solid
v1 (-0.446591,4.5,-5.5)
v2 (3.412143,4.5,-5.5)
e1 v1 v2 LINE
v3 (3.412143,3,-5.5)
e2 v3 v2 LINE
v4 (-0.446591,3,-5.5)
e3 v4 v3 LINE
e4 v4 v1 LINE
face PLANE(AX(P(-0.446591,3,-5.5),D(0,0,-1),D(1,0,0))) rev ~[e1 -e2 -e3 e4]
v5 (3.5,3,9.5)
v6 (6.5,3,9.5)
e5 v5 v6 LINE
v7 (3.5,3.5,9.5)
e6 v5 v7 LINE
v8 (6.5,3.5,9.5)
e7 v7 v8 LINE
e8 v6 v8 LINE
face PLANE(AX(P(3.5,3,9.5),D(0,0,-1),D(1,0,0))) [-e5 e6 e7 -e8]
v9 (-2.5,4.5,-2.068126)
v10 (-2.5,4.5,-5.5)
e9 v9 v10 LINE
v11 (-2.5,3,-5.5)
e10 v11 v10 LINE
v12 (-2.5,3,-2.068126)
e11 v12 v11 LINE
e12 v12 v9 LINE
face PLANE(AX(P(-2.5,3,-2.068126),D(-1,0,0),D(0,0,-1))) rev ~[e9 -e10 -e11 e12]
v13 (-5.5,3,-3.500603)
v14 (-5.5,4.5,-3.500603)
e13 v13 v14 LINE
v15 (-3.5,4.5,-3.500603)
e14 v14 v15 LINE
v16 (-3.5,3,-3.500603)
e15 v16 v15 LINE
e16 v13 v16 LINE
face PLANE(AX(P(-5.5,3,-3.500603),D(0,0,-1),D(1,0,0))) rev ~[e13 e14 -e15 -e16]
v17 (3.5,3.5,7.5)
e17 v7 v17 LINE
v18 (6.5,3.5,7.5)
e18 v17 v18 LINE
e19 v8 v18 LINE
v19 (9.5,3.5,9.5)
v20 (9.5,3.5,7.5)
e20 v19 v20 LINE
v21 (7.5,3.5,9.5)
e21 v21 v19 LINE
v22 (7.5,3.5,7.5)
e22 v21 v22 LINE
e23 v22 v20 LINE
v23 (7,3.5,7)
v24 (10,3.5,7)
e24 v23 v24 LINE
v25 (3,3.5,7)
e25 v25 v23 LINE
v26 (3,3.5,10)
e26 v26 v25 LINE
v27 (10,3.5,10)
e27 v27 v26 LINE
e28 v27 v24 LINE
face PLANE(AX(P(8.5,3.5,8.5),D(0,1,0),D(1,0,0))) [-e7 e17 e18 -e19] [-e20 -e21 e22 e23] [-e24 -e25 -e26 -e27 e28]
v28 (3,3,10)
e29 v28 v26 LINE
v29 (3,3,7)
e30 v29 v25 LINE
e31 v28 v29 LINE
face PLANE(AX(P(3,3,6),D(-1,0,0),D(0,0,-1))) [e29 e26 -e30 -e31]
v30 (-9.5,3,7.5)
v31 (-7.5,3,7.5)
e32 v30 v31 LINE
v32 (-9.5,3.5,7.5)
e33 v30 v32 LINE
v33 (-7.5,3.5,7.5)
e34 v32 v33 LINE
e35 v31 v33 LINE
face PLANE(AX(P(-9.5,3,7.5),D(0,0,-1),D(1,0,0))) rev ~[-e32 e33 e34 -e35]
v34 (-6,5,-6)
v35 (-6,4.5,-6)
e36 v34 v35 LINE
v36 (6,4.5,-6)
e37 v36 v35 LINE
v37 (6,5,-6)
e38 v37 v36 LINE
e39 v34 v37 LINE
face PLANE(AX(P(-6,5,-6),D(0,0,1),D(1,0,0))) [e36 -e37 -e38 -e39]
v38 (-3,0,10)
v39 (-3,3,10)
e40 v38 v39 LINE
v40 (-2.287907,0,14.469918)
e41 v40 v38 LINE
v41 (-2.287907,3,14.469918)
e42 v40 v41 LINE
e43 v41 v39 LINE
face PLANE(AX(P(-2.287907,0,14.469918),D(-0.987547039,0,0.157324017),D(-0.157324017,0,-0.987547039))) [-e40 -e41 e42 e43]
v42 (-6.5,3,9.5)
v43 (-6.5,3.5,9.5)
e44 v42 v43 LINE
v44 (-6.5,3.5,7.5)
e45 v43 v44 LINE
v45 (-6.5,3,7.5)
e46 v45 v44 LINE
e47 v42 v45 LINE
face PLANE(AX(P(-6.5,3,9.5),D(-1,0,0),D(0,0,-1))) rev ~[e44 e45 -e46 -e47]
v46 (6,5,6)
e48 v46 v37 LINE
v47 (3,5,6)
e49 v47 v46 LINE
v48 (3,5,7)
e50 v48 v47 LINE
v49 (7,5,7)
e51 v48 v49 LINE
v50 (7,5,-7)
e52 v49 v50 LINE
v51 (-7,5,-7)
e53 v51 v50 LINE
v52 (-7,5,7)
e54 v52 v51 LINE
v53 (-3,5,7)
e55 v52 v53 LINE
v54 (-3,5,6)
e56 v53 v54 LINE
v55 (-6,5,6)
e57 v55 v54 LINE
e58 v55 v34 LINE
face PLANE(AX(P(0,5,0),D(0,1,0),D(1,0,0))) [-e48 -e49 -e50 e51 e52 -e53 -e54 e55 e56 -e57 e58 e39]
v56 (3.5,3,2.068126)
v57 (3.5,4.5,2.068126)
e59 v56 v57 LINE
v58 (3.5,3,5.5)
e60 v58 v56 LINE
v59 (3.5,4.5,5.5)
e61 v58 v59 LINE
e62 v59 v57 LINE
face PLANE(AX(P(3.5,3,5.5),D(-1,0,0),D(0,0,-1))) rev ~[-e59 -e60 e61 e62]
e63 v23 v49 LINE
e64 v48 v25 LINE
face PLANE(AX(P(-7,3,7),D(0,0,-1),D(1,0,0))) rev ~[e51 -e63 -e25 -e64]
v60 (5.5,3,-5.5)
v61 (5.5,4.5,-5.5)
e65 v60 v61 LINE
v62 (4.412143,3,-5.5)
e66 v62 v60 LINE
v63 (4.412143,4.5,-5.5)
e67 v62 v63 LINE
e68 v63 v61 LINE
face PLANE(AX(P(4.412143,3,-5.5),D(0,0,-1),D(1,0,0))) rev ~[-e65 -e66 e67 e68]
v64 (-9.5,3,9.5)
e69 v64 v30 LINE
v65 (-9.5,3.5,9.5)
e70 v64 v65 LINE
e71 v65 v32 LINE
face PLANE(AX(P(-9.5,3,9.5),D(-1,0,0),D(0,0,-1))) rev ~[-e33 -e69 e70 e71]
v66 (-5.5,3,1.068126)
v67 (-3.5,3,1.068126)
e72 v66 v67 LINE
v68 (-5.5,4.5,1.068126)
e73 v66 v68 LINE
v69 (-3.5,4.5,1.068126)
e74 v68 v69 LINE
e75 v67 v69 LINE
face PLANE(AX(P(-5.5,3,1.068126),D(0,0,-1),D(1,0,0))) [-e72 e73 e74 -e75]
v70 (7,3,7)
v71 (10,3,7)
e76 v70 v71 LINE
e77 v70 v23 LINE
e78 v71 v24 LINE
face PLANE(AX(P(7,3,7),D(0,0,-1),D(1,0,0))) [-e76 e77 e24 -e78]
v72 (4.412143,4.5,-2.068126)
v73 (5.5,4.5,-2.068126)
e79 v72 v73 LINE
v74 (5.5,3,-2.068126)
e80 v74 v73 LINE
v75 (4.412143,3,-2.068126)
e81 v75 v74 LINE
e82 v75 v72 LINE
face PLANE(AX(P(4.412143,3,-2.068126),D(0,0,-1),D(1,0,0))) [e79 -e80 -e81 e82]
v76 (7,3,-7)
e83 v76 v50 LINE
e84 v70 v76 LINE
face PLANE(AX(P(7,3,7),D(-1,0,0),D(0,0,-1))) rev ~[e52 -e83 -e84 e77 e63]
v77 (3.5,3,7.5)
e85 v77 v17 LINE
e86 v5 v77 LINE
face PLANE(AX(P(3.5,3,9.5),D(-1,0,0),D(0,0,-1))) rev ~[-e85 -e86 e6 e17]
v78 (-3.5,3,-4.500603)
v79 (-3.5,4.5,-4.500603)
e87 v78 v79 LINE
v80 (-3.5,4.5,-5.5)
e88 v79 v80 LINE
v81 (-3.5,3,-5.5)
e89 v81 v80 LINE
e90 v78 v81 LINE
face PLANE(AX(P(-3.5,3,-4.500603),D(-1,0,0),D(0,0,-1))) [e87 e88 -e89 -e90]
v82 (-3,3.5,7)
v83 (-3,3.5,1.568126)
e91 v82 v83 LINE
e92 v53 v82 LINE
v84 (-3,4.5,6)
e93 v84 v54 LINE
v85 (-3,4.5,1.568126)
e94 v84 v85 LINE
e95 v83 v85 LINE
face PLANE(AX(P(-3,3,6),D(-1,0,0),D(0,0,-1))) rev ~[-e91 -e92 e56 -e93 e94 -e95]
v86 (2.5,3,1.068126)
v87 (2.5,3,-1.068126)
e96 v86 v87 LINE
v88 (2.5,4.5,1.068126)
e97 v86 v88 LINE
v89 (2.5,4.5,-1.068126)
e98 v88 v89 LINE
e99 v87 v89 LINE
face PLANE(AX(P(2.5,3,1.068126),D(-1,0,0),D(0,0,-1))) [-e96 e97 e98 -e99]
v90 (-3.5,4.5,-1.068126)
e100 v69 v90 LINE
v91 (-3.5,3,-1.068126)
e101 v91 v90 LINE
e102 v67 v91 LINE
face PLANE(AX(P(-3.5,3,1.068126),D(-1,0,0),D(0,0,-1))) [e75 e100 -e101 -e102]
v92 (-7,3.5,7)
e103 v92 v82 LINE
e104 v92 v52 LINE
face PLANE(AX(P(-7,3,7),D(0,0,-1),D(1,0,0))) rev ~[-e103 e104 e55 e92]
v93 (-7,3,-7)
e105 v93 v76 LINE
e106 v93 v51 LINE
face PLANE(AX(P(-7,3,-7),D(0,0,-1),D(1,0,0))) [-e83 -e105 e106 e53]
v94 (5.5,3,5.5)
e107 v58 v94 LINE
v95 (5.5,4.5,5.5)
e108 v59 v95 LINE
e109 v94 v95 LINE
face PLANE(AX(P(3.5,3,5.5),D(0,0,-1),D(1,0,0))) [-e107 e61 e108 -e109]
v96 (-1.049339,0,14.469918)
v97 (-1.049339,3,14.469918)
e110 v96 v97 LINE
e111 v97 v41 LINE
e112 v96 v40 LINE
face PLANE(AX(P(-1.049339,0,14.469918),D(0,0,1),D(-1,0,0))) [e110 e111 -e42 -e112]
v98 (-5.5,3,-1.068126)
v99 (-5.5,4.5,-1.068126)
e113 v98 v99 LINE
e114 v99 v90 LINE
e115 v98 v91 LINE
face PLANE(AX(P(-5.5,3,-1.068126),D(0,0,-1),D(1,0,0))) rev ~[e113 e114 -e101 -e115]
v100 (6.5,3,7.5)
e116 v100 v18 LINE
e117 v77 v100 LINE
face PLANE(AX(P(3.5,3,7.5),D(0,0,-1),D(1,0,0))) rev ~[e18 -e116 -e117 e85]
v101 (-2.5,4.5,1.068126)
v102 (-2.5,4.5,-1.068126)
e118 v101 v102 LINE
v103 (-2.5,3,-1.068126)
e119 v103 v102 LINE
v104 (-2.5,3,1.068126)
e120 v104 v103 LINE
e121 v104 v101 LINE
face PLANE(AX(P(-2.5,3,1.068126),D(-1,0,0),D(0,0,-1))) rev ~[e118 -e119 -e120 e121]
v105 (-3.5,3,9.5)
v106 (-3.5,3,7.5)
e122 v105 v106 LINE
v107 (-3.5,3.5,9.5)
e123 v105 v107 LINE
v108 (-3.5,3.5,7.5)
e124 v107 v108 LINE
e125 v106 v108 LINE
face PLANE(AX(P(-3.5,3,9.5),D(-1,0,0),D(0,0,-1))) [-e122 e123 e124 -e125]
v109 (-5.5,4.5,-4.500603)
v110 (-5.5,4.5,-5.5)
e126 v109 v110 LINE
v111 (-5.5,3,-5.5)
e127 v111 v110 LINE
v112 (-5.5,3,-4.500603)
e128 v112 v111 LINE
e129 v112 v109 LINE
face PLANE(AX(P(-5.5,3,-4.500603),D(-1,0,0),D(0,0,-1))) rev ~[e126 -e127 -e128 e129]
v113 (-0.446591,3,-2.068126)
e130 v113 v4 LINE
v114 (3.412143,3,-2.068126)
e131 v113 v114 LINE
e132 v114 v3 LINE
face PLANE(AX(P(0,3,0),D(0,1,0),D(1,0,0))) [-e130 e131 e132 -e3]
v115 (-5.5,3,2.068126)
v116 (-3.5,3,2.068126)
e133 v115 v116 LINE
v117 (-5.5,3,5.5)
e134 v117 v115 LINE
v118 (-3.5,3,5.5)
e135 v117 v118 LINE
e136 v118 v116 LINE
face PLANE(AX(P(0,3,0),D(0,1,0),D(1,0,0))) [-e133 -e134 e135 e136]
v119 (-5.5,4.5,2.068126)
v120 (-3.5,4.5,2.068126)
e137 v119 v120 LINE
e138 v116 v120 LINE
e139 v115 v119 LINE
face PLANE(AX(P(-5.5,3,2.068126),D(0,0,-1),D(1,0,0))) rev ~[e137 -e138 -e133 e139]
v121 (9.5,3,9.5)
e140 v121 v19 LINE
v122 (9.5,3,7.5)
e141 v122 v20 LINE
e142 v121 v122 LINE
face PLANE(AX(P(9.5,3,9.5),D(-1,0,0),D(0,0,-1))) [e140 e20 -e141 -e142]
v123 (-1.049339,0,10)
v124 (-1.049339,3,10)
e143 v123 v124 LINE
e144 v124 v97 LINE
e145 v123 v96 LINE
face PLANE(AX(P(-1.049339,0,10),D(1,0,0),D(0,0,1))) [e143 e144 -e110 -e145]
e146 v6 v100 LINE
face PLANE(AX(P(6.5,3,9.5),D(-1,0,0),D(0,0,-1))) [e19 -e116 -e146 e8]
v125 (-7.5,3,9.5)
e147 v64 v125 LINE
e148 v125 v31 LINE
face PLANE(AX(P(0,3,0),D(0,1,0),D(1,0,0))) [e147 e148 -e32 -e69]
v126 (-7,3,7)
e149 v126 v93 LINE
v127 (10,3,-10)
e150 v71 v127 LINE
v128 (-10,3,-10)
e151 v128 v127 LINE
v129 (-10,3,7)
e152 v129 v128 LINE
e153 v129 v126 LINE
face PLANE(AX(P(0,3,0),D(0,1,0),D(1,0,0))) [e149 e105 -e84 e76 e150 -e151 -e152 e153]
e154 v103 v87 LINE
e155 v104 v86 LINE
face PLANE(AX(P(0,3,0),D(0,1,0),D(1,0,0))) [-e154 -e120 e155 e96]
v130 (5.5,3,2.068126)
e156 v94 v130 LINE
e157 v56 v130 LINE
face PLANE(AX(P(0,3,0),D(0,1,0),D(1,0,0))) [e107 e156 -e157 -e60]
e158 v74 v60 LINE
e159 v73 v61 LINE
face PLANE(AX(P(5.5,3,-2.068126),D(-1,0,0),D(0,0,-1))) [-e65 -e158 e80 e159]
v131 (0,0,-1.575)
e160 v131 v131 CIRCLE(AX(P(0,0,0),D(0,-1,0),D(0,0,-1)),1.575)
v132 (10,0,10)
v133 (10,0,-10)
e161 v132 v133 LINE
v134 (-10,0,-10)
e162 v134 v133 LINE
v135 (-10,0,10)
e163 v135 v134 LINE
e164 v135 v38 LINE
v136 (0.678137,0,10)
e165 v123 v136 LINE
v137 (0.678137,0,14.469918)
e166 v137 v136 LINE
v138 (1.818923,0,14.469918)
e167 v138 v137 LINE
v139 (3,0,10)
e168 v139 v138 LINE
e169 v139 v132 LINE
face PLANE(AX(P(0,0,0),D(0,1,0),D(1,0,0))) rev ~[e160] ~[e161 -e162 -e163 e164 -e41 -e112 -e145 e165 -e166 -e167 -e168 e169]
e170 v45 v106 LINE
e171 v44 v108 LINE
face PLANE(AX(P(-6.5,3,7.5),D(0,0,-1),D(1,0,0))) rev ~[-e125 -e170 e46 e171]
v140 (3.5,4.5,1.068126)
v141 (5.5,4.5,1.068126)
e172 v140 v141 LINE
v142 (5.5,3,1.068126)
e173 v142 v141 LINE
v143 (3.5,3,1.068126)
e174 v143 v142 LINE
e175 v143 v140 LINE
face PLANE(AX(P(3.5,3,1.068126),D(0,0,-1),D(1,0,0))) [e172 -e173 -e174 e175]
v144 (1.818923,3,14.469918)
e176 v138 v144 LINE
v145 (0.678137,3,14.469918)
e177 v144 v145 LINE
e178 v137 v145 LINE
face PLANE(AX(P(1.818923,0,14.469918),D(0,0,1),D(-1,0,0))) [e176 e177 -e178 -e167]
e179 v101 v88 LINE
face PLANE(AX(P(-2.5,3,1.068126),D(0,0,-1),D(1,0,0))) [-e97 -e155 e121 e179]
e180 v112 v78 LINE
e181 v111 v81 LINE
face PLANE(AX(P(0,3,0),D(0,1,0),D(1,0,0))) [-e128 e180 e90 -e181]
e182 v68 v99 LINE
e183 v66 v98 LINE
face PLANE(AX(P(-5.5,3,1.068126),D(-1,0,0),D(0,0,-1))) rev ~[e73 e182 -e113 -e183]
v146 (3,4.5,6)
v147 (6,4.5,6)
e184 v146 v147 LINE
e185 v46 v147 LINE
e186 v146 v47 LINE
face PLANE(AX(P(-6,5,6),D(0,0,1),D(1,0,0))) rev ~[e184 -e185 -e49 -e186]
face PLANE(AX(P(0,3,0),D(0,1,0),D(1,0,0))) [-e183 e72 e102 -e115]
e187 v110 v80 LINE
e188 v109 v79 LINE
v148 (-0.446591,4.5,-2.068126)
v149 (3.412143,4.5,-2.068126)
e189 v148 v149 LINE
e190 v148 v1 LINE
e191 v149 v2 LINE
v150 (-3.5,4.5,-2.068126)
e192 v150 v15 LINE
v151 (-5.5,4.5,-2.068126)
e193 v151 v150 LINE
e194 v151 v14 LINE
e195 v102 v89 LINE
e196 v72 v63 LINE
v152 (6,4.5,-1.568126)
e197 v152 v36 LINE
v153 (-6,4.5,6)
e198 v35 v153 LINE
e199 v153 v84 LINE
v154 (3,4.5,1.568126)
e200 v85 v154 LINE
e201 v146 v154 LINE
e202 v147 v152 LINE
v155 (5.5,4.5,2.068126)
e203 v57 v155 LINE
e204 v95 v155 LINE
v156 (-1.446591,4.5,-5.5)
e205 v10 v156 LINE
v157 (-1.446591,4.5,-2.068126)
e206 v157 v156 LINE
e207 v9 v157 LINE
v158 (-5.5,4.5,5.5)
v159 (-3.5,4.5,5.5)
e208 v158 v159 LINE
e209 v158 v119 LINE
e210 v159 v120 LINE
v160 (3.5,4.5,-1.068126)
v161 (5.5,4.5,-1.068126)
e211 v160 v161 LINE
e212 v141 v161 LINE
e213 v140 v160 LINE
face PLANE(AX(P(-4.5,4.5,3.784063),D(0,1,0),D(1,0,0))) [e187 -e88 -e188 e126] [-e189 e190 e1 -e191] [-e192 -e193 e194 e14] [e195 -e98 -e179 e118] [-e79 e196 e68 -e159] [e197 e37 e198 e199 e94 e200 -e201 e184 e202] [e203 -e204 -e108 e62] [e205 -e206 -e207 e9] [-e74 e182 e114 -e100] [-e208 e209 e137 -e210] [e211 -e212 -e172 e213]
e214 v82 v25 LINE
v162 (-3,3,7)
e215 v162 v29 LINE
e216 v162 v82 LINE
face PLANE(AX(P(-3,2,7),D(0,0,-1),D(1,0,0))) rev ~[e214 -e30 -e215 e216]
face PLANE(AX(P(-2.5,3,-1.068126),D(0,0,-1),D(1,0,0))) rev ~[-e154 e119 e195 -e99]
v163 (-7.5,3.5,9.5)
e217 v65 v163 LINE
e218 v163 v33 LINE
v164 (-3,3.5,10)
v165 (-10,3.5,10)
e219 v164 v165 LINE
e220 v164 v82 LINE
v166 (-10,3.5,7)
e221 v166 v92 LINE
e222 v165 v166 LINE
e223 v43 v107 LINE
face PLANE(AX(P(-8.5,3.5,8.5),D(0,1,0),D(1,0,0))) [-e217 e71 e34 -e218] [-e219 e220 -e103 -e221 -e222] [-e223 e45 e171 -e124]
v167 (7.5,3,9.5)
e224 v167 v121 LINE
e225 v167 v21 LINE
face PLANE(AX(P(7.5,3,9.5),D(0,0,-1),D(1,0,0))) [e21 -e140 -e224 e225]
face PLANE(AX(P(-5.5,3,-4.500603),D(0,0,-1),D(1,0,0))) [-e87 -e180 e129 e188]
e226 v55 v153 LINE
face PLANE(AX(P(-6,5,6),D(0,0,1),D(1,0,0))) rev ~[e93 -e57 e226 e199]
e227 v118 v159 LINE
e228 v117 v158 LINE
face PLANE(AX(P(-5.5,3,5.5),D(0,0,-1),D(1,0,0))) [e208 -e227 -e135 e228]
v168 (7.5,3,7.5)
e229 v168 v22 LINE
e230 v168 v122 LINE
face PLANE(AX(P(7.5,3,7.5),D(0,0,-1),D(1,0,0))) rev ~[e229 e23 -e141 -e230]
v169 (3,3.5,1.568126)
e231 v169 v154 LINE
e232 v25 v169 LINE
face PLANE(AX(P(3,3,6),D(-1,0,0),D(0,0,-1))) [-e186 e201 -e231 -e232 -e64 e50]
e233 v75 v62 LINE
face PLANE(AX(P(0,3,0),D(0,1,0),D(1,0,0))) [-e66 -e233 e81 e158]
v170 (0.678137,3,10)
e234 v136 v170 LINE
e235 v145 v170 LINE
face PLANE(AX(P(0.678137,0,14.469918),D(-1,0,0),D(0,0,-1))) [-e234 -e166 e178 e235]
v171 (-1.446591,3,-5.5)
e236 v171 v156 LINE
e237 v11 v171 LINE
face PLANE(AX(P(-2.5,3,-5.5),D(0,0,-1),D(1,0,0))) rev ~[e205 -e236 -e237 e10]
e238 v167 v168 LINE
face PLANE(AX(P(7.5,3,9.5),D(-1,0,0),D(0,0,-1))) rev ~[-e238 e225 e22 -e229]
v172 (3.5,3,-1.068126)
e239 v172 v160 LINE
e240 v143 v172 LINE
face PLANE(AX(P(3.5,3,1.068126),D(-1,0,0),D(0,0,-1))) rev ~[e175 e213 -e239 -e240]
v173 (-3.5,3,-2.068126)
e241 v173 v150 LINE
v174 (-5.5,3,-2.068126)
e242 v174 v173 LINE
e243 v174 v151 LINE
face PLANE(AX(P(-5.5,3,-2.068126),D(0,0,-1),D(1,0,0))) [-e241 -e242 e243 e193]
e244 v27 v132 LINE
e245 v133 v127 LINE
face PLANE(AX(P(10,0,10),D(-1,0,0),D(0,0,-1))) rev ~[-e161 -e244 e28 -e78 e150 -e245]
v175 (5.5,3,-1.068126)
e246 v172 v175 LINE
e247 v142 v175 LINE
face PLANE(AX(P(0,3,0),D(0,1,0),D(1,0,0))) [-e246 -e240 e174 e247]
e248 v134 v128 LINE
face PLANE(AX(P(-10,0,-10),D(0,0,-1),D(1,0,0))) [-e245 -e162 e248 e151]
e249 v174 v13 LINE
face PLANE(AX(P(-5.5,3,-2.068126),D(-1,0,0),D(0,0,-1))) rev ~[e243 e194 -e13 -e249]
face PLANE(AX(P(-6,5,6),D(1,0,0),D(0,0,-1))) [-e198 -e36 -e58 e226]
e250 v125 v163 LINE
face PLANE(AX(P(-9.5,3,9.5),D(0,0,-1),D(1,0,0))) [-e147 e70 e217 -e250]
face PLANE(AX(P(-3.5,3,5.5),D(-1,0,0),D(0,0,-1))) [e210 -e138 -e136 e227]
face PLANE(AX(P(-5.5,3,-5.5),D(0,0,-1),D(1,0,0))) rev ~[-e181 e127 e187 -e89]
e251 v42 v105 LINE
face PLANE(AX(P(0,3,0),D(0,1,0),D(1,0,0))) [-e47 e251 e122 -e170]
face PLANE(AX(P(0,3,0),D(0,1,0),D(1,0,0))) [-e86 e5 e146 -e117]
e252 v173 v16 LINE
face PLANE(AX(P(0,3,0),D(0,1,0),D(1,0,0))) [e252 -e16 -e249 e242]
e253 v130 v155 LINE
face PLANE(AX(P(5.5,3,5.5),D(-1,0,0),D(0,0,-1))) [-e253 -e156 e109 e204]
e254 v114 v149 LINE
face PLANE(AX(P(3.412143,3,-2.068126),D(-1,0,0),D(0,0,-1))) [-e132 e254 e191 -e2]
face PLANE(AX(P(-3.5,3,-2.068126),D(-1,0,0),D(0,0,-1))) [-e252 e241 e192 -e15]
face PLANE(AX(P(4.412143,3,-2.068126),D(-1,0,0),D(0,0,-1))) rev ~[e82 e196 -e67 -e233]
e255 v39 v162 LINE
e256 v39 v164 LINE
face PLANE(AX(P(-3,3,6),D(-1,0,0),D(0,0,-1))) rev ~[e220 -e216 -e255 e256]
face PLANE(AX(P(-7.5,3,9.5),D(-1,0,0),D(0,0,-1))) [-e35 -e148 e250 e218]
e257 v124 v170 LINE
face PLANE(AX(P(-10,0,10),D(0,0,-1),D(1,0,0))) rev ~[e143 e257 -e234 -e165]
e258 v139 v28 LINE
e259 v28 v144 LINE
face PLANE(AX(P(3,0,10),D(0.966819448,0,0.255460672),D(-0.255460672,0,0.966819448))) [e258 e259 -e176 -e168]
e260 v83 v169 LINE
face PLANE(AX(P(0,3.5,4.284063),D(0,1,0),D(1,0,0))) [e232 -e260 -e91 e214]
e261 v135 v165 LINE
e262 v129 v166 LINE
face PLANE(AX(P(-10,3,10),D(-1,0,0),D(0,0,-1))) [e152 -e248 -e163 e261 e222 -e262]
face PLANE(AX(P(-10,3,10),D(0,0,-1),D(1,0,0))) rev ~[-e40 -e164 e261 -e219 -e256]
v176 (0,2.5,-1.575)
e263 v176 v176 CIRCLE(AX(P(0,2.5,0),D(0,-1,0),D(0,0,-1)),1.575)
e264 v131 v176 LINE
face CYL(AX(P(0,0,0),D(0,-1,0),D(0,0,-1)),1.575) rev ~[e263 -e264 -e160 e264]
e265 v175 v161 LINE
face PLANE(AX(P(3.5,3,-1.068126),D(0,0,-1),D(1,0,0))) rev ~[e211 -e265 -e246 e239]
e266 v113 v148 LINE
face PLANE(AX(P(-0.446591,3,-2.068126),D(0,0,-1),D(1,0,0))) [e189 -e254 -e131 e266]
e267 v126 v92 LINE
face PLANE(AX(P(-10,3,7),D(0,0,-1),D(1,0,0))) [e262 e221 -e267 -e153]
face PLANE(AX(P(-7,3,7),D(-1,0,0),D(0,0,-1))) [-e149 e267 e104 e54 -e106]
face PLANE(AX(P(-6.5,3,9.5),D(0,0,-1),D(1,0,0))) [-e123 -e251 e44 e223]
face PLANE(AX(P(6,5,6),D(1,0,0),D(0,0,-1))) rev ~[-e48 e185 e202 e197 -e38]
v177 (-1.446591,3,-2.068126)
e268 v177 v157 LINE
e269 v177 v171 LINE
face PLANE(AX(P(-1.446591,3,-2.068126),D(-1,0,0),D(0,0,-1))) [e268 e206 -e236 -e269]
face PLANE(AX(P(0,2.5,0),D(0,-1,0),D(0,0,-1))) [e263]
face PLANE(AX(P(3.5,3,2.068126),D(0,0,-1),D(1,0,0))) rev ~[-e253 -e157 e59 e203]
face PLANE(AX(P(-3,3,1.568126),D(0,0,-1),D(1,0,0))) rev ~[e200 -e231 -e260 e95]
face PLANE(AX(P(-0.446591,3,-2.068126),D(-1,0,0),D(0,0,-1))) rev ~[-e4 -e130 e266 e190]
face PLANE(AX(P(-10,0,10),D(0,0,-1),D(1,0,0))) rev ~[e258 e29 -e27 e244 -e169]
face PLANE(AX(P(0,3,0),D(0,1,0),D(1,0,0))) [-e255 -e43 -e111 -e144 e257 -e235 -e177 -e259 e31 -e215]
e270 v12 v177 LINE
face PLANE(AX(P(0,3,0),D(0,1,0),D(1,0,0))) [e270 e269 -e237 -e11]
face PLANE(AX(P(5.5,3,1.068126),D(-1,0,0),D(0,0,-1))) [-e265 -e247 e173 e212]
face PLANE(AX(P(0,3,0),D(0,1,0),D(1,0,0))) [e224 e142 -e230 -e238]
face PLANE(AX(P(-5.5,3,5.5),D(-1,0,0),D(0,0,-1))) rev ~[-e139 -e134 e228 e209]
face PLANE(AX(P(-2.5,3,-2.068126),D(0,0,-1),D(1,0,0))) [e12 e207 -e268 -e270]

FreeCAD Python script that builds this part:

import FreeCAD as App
import Part
import Sketcher

V = App.Vector
Q = App.Units.Quantity


def add_polygon(sketch, points):
    """Adds a closed chain of lines whose ends are joined by coincident constraints."""
    first, n = sketch.GeometryCount, len(points)
    for a, b in zip(points, points[1:] + points[:1]):
        sketch.addGeometry(Part.LineSegment(App.Vector(*a, 0), App.Vector(*b, 0)), False)
    for i in range(n):
        sketch.addConstraint(Sketcher.Constraint("Coincident", first + i, 2, first + (i + 1) % n, 1))

doc = App.newDocument("Part")
body = doc.addObject("PartDesign::Body", "Body")

sketch1 = body.newObject("Sketcher::SketchObject", "Sketch")
sketch1.AttachmentSupport = (doc.getObject("XZ_Plane"), [""])
sketch1.MapMode = "FlatFace"
add_polygon(sketch1, [(-10, -10), (-10, 10), (10, 10), (10, -10)])
sketch1.addConstraint(Sketcher.Constraint("Vertical", 0))
sketch1.addConstraint(Sketcher.Constraint("Horizontal", 1))
sketch1.addConstraint(Sketcher.Constraint("Vertical", 2))
sketch1.addConstraint(Sketcher.Constraint("Horizontal", 3))
sketch1.addConstraint(Sketcher.Constraint("Symmetric", 0, 2, 2, 2, -1, 1))
sketch1.addConstraint(Sketcher.Constraint("Equal", 3, 0))
sketch1.addConstraint(Sketcher.Constraint("DistanceX", 1, 1, 1, 2, Q("20 mm")))
pad1 = body.newObject("PartDesign::Pad", "Pad")
pad1.Profile = sketch1
pad1.Length = 3
pad1.Reversed = True

sketch2 = body.newObject("Sketcher::SketchObject", "Sketch001")
sketch2.AttachmentSupport = (doc.getObject("XZ_Plane"), [""])
sketch2.MapMode = "FlatFace"
sketch2.AttachmentOffset = App.Placement(V(0, 0, -3), App.Rotation())
add_polygon(sketch2, [(-7, -7), (-7, 7), (7, 7), (7, -7)])
sketch2.addConstraint(Sketcher.Constraint("Vertical", 0))
sketch2.addConstraint(Sketcher.Constraint("Horizontal", 1))
sketch2.addConstraint(Sketcher.Constraint("Vertical", 2))
sketch2.addConstraint(Sketcher.Constraint("Horizontal", 3))
sketch2.addConstraint(Sketcher.Constraint("Symmetric", 0, 2, 2, 2, -1, 1))
sketch2.addConstraint(Sketcher.Constraint("Equal", 3, 0))
sketch2.addConstraint(Sketcher.Constraint("DistanceX", 1, 1, 1, 2, Q("14 mm")))
pad2 = body.newObject("PartDesign::Pad", "Pad001")
pad2.Profile = sketch2
pad2.Length = 2
pad2.Reversed = True

sketch3 = body.newObject("Sketcher::SketchObject", "Sketch002")
sketch3.AttachmentSupport = (doc.getObject("XZ_Plane"), [""])
sketch3.MapMode = "FlatFace"
sketch3.AttachmentOffset = App.Placement(V(0, 0, -5), App.Rotation())
add_polygon(sketch3, [(-6, -6), (-6, 6), (6, 6), (6, -6)])
sketch3.addConstraint(Sketcher.Constraint("Vertical", 0))
sketch3.addConstraint(Sketcher.Constraint("Horizontal", 1))
sketch3.addConstraint(Sketcher.Constraint("Vertical", 2))
sketch3.addConstraint(Sketcher.Constraint("Horizontal", 3))
sketch3.addConstraint(Sketcher.Constraint("Symmetric", 0, 2, 2, 2, -1, 1))
sketch3.addConstraint(Sketcher.Constraint("Equal", 3, 0))
sketch3.addConstraint(Sketcher.Constraint("DistanceX", 1, 1, 1, 2, Q("12 mm")))
pocket1 = body.newObject("PartDesign::Pocket", "Pocket")
pocket1.Profile = sketch3
pocket1.Length = 2
pocket1.Reversed = True

sketch4 = body.newObject("Sketcher::SketchObject", "Sketch003")
sketch4.AttachmentSupport = (doc.getObject("XZ_Plane"), [""])
sketch4.MapMode = "FlatFace"
sketch4.AttachmentOffset = App.Placement(V(0, 0, -5), App.Rotation())
add_polygon(sketch4, [(-3, 4.4), (-3, 7), (3, 7), (3, 4.4)])
sketch4.addConstraint(Sketcher.Constraint("Vertical", 0))
sketch4.addConstraint(Sketcher.Constraint("Horizontal", 1))
sketch4.addConstraint(Sketcher.Constraint("Vertical", 2))
sketch4.addConstraint(Sketcher.Constraint("Horizontal", 3))
sketch4.addConstraint(Sketcher.Constraint("DistanceX", 1, 1, 1, 2, Q("6 mm")))
sketch4.addConstraint(Sketcher.Constraint("DistanceX", 0, 2, -1, 1, Q("3 mm")))
sketch4.addConstraint(Sketcher.Constraint("DistanceY", -1, 1, 0, 2, Q("7 mm")))
sketch4.addConstraint(Sketcher.Constraint("DistanceY", 0, 1, 0, 2, Q("2.600399 mm")))
pocket2 = body.newObject("PartDesign::Pocket", "Pocket001")
pocket2.Profile = sketch4
pocket2.Length = 3
pocket2.Reversed = True

sketch5 = body.newObject("Sketcher::SketchObject", "Sketch004")
sketch5.AttachmentSupport = (doc.getObject("XZ_Plane"), [""])
sketch5.MapMode = "FlatFace"
add_polygon(sketch5, [(-1, 10), (-3, 10), (-2.3, 14.5), (-1, 14.5)])
add_polygon(sketch5, [(3, 10), (0.7, 10), (0.7, 14.5), (1.8, 14.5)])
sketch5.addConstraint(Sketcher.Constraint("Horizontal", 0))
sketch5.addConstraint(Sketcher.Constraint("Horizontal", 2))
sketch5.addConstraint(Sketcher.Constraint("Vertical", 3))
sketch5.addConstraint(Sketcher.Constraint("Horizontal", 4))
sketch5.addConstraint(Sketcher.Constraint("Vertical", 5))
sketch5.addConstraint(Sketcher.Constraint("Horizontal", 6))
sketch5.addConstraint(Sketcher.Constraint("Symmetric", 0, 2, 7, 2, -2))
sketch5.addConstraint(Sketcher.Constraint("Horizontal", 2, 2, 5, 2))
sketch5.addConstraint(Sketcher.Constraint("DistanceX", 0, 2, -1, 1, Q("3 mm")))
sketch5.addConstraint(Sketcher.Constraint("DistanceY", -1, 1, 0, 2, Q("10 mm")))
sketch5.addConstraint(Sketcher.Constraint("DistanceX", 0, 2, 0, 1, Q("1.950661 mm")))
sketch5.addConstraint(Sketcher.Constraint("DistanceX", 2, 1, 2, 2, Q("1.238568 mm")))
sketch5.addConstraint(Sketcher.Constraint("DistanceX", 4, 2, 4, 1, Q("2.321863 mm")))
sketch5.addConstraint(Sketcher.Constraint("DistanceX", 6, 1, 6, 2, Q("1.140786 mm")))
sketch5.addConstraint(Sketcher.Constraint("DistanceY", 3, 2, 3, 1, Q("4.469918 mm")))
pad3 = body.newObject("PartDesign::Pad", "Pad002")
pad3.Profile = sketch5
pad3.Length = 3
pad3.Reversed = True

sketch6 = body.newObject("Sketcher::SketchObject", "Sketch005")
sketch6.AttachmentSupport = (doc.getObject("XZ_Plane"), [""])
sketch6.MapMode = "FlatFace"
sketch6.AttachmentOffset = App.Placement(V(0, 0, -3), App.Rotation())
add_polygon(sketch6, [(-10, 7), (-10, 10), (-3, 10), (-3, 7)])
add_polygon(sketch6, [(-7.5, 9.5), (-9.5, 9.5), (-9.5, 7.5), (-7.5, 7.5)])
add_polygon(sketch6, [(-6.5, 9.5), (-6.5, 7.5), (-3.5, 7.5), (-3.5, 9.5)])
add_polygon(sketch6, [(3, 7), (3, 10), (10, 10), (10, 7)])
add_polygon(sketch6, [(6.5, 9.5), (3.5, 9.5), (3.5, 7.5), (6.5, 7.5)])
add_polygon(sketch6, [(7.5, 9.5), (7.5, 7.5), (9.5, 7.5), (9.5, 9.5)])
sketch6.addConstraint(Sketcher.Constraint("Vertical", 0))
sketch6.addConstraint(Sketcher.Constraint("Horizontal", 1))
sketch6.addConstraint(Sketcher.Constraint("Vertical", 2))
sketch6.addConstraint(Sketcher.Constraint("Horizontal", 3))
sketch6.addConstraint(Sketcher.Constraint("Horizontal", 4))
sketch6.addConstraint(Sketcher.Constraint("Vertical", 5))
sketch6.addConstraint(Sketcher.Constraint("Horizontal", 6))
sketch6.addConstraint(Sketcher.Constraint("Vertical", 7))
sketch6.addConstraint(Sketcher.Constraint("Vertical", 8))
sketch6.addConstraint(Sketcher.Constraint("Horizontal", 9))
sketch6.addConstraint(Sketcher.Constraint("Vertical", 10))
sketch6.addConstraint(Sketcher.Constraint("Horizontal", 11))
sketch6.addConstraint(Sketcher.Constraint("Vertical", 12))
sketch6.addConstraint(Sketcher.Constraint("Horizontal", 13))
sketch6.addConstraint(Sketcher.Constraint("Vertical", 14))
sketch6.addConstraint(Sketcher.Constraint("Horizontal", 15))
sketch6.addConstraint(Sketcher.Constraint("Horizontal", 16))
sketch6.addConstraint(Sketcher.Constraint("Vertical", 17))
sketch6.addConstraint(Sketcher.Constraint("Horizontal", 18))
sketch6.addConstraint(Sketcher.Constraint("Vertical", 19))
sketch6.addConstraint(Sketcher.Constraint("Vertical", 20))
sketch6.addConstraint(Sketcher.Constraint("Horizontal", 21))
sketch6.addConstraint(Sketcher.Constraint("Vertical", 22))
sketch6.addConstraint(Sketcher.Constraint("Horizontal", 23))
sketch6.addConstraint(Sketcher.Constraint("Symmetric", 1, 2, 12, 2, -2))
sketch6.addConstraint(Sketcher.Constraint("Symmetric", 3, 2, 14, 2, -2))
sketch6.addConstraint(Sketcher.Constraint("Symmetric", 10, 2, 16, 2, -2))
sketch6.addConstraint(Sketcher.Constraint("Symmetric", 8, 2, 18, 2, -2))
sketch6.addConstraint(Sketcher.Constraint("Symmetric", 6, 2, 20, 2, -2))
sketch6.addConstraint(Sketcher.Constraint("Symmetric", 4, 2, 22, 2, -2))
sketch6.addConstraint(Sketcher.Constraint("Horizontal", 6, 2, 8, 2))
sketch6.addConstraint(Sketcher.Constraint("Horizontal", 7, 2, 10, 2))
sketch6.addConstraint(Sketcher.Constraint("Equal", 18, 0))
sketch6.addConstraint(Sketcher.Constraint("Equal", 23, 5))
sketch6.addConstraint(Sketcher.Constraint("DistanceX", 1, 1, 1, 2, Q("7 mm")))
sketch6.addConstraint(Sketcher.Constraint("DistanceX", 4, 2, 4, 1, Q("2 mm")))
sketch6.addConstraint(Sketcher.Constraint("DistanceX", 9, 1, 9, 2, Q("3 mm")))
sketch6.addConstraint(Sketcher.Constraint("DistanceX", 0, 2, -1, 1, Q("10 mm")))
sketch6.addConstraint(Sketcher.Constraint("DistanceY", -1, 1, 0, 2, Q("10 mm")))
sketch6.addConstraint(Sketcher.Constraint("DistanceX", 6, 2, 8, 2, Q("1 mm")))
sketch6.addConstraint(Sketcher.Constraint("DistanceX", 4, 2, -1, 1, Q("9.5 mm")))
sketch6.addConstraint(Sketcher.Constraint("DistanceY", -1, 1, 4, 2, Q("9.5 mm")))
pad4 = body.newObject("PartDesign::Pad", "Pad003")
pad4.Profile = sketch6
pad4.Length = 0.5
pad4.Reversed = True

sketch7 = body.newObject("Sketcher::SketchObject", "Sketch006")
sketch7.AttachmentSupport = (doc.getObject("XZ_Plane"), [""])
sketch7.MapMode = "FlatFace"
sketch7.AttachmentOffset = App.Placement(V(0, 0, -3), App.Rotation())
add_polygon(sketch7, [(-3, 1.6), (-3, 4.4), (3, 4.4), (3, 1.6)])
sketch7.addConstraint(Sketcher.Constraint("Vertical", 0))
sketch7.addConstraint(Sketcher.Constraint("Horizontal", 1))
sketch7.addConstraint(Sketcher.Constraint("Vertical", 2))
sketch7.addConstraint(Sketcher.Constraint("Horizontal", 3))
sketch7.addConstraint(Sketcher.Constraint("DistanceX", 1, 1, 1, 2, Q("6 mm")))
sketch7.addConstraint(Sketcher.Constraint("DistanceX", 0, 2, -1, 1, Q("3 mm")))
sketch7.addConstraint(Sketcher.Constraint("DistanceY", -1, 1, 0, 2, Q("4.399601 mm")))
sketch7.addConstraint(Sketcher.Constraint("DistanceY", 0, 1, 0, 2, Q("2.831475 mm")))
pocket3 = body.newObject("PartDesign::Pocket", "Pocket002")
pocket3.Profile = sketch7
pocket3.Length = 1
pocket3.Reversed = True

sketch8 = body.newObject("Sketcher::SketchObject", "Sketch007")
sketch8.AttachmentSupport = (doc.getObject("XZ_Plane"), [""])
sketch8.MapMode = "FlatFace"
sketch8.AttachmentOffset = App.Placement(V(0, 0, -3), App.Rotation())
add_polygon(sketch8, [(-3, 1.6), (-3, 7), (-2, 7), (-2, 1.6)])
sketch8.addConstraint(Sketcher.Constraint("Vertical", 0))
sketch8.addConstraint(Sketcher.Constraint("Horizontal", 1))
sketch8.addConstraint(Sketcher.Constraint("Vertical", 2))
sketch8.addConstraint(Sketcher.Constraint("Horizontal", 3))
sketch8.addConstraint(Sketcher.Constraint("DistanceX", 1, 1, 1, 2, Q("1 mm")))
sketch8.addConstraint(Sketcher.Constraint("DistanceX", 0, 2, -1, 1, Q("3 mm")))
sketch8.addConstraint(Sketcher.Constraint("DistanceY", 0, 1, 0, 2, Q("5.440517 mm")))
sketch8.addConstraint(Sketcher.Constraint("DistanceY", -1, 1, 0, 2, Q("7.008642 mm")))
pad5 = body.newObject("PartDesign::Pad", "Pad004")
pad5.Profile = sketch8
pad5.Length = 0.5

sketch9 = body.newObject("Sketcher::SketchObject", "Sketch008")
sketch9.AttachmentSupport = (doc.getObject("XZ_Plane"), [""])
sketch9.MapMode = "FlatFace"
sketch9.AttachmentOffset = App.Placement(V(0, 0, -3), App.Rotation())
add_polygon(sketch9, [(-6, 6), (-3, 6), (-3, 1.6), (3, 1.6), (3, 6), (6, 6), (6, -1.6), (6, -6), (-6, -6)])
add_polygon(sketch9, [(-3.5, 5.5), (-5.5, 5.5), (-5.5, 2.1), (-3.5, 2.1)])
add_polygon(sketch9, [(-5.5, 1.1), (-5.5, -1.1), (-3.5, -1.1), (-3.5, 1.1)])
add_polygon(sketch9, [(-5.5, -2.1), (-5.5, -3.5), (-3.5, -3.5), (-3.5, -2.1)])
add_polygon(sketch9, [(-2.5, 1.1), (-2.5, -1.1), (2.5, -1.1), (2.5, 1.1)])
add_polygon(sketch9, [(-5.5, -4.5), (-5.5, -5.5), (-3.5, -5.5), (-3.5, -4.5)])
add_polygon(sketch9, [(-1.4, -5.5), (-1.4, -2.1), (-2.5, -2.1), (-2.5, -5.5)])
add_polygon(sketch9, [(-0.4, -5.5), (3.4, -5.5), (3.4, -2.1), (-0.4, -2.1)])
add_polygon(sketch9, [(3.5, 1.1), (3.5, -1.1), (5.5, -1.1), (5.5, 1.1)])
add_polygon(sketch9, [(4.4, -2.1), (4.4, -5.5), (5.5, -5.5), (5.5, -2.1)])
add_polygon(sketch9, [(3.5, 5.5), (3.5, 2.1), (5.5, 2.1), (5.5, 5.5)])
sketch9.addConstraint(Sketcher.Constraint("Horizontal", 0))
sketch9.addConstraint(Sketcher.Constraint("Vertical", 1))
sketch9.addConstraint(Sketcher.Constraint("Horizontal", 2))
sketch9.addConstraint(Sketcher.Constraint("Vertical", 3))
sketch9.addConstraint(Sketcher.Constraint("Horizontal", 4))
sketch9.addConstraint(Sketcher.Constraint("Vertical", 5))
sketch9.addConstraint(Sketcher.Constraint("Vertical", 6))
sketch9.addConstraint(Sketcher.Constraint("Horizontal", 7))
sketch9.addConstraint(Sketcher.Constraint("Vertical", 8))
sketch9.addConstraint(Sketcher.Constraint("Horizontal", 9))
sketch9.addConstraint(Sketcher.Constraint("Vertical", 10))
sketch9.addConstraint(Sketcher.Constraint("Horizontal", 11))
sketch9.addConstraint(Sketcher.Constraint("Vertical", 12))
sketch9.addConstraint(Sketcher.Constraint("Vertical", 13))
sketch9.addConstraint(Sketcher.Constraint("Horizontal", 14))
sketch9.addConstraint(Sketcher.Constraint("Vertical", 15))
sketch9.addConstraint(Sketcher.Constraint("Horizontal", 16))
sketch9.addConstraint(Sketcher.Constraint("Vertical", 17))
sketch9.addConstraint(Sketcher.Constraint("Horizontal", 18))
sketch9.addConstraint(Sketcher.Constraint("Vertical", 19))
sketch9.addConstraint(Sketcher.Constraint("Horizontal", 20))
sketch9.addConstraint(Sketcher.Constraint("Vertical", 21))
sketch9.addConstraint(Sketcher.Constraint("Horizontal", 22))
sketch9.addConstraint(Sketcher.Constraint("Vertical", 23))
sketch9.addConstraint(Sketcher.Constraint("Horizontal", 24))
sketch9.addConstraint(Sketcher.Constraint("Vertical", 25))
sketch9.addConstraint(Sketcher.Constraint("Horizontal", 26))
sketch9.addConstraint(Sketcher.Constraint("Vertical", 27))
sketch9.addConstraint(Sketcher.Constraint("Horizontal", 28))
sketch9.addConstraint(Sketcher.Constraint("Vertical", 29))
sketch9.addConstraint(Sketcher.Constraint("Horizontal", 30))
sketch9.addConstraint(Sketcher.Constraint("Vertical", 31))
sketch9.addConstraint(Sketcher.Constraint("Horizontal", 32))
sketch9.addConstraint(Sketcher.Constraint("Horizontal", 33))
sketch9.addConstraint(Sketcher.Constraint("Vertical", 34))
sketch9.addConstraint(Sketcher.Constraint("Horizontal", 35))
sketch9.addConstraint(Sketcher.Constraint("Vertical", 36))
sketch9.addConstraint(Sketcher.Constraint("Vertical", 37))
sketch9.addConstraint(Sketcher.Constraint("Horizontal", 38))
sketch9.addConstraint(Sketcher.Constraint("Vertical", 39))
sketch9.addConstraint(Sketcher.Constraint("Horizontal", 40))
sketch9.addConstraint(Sketcher.Constraint("Vertical", 41))
sketch9.addConstraint(Sketcher.Constraint("Horizontal", 42))
sketch9.addConstraint(Sketcher.Constraint("Vertical", 43))
sketch9.addConstraint(Sketcher.Constraint("Horizontal", 44))
sketch9.addConstraint(Sketcher.Constraint("Vertical", 45))
sketch9.addConstraint(Sketcher.Constraint("Horizontal", 46))
sketch9.addConstraint(Sketcher.Constraint("Vertical", 47))
sketch9.addConstraint(Sketcher.Constraint("Horizontal", 48))
sketch9.addConstraint(Sketcher.Constraint("Symmetric", 4, 2, 7, 2, -1, 1))
sketch9.addConstraint(Sketcher.Constraint("Symmetric", 21, 2, 23, 2, -1, 1))
sketch9.addConstraint(Sketcher.Constraint("Symmetric", 15, 2, 37, 2, -1, 1))
sketch9.addConstraint(Sketcher.Constraint("Symmetric", 13, 2, 39, 2, -1, 1))
sketch9.addConstraint(Sketcher.Constraint("Symmetric", 9, 2, 42, 2, -1, 1))
sketch9.addConstraint(Sketcher.Constraint("Symmetric", 19, 2, 45, 2, -1, 1))
sketch9.addConstraint(Sketcher.Constraint("Symmetric", 25, 2, 47, 2, -1, 1))
sketch9.addConstraint(Sketcher.Constraint("Symmetric", 0, 2, 3, 2, -2))
sketch9.addConstraint(Sketcher.Constraint("Symmetric", 25, 2, 42, 2, -2))
sketch9.addConstraint(Sketcher.Constraint("Symmetric", 20, 2, 43, 2, -2))
sketch9.addConstraint(Sketcher.Constraint("Symmetric", 11, 2, 45, 2, -2))
sketch9.addConstraint(Sketcher.Constraint("Horizontal", 14, 2, 21, 2))
sketch9.addConstraint(Sketcher.Constraint("Horizontal", 16, 2, 23, 2))
sketch9.addConstraint(Sketcher.Constraint("Horizontal", 20, 2, 29, 2))
sketch9.addConstraint(Sketcher.Constraint("Horizontal", 26, 2, 31, 2))
sketch9.addConstraint(Sketcher.Constraint("Horizontal", 32, 2, 33, 2))
sketch9.addConstraint(Sketcher.Constraint("Horizontal", 30, 2, 34, 2))
sketch9.addConstraint(Sketcher.Constraint("Vertical", 10, 2, 13, 2))
sketch9.addConstraint(Sketcher.Constraint("Vertical", 12, 2, 14, 2))
sketch9.addConstraint(Sketcher.Constraint("Vertical", 19, 2, 26, 2))
sketch9.addConstraint(Sketcher.Constraint("Vertical", 24, 2, 30, 2))
sketch9.addConstraint(Sketcher.Constraint("Equal", 3, 6))
sketch9.addConstraint(Sketcher.Constraint("Equal", 7, 8))
sketch9.addConstraint(Sketcher.Constraint("DistanceX", 0, 1, 0, 2, Q("3 mm")))
sketch9.addConstraint(Sketcher.Constraint("DistanceX", 2, 1, 2, 2, Q("6 mm")))
sketch9.addConstraint(Sketcher.Constraint("DistanceX", 9, 2, 9, 1, Q("2 mm")))
sketch9.addConstraint(Sketcher.Constraint("DistanceX", 22, 1, 22, 2, Q("5 mm")))
sketch9.addConstraint(Sketcher.Constraint("DistanceY", 15, 2, 11, 2, Q("1 mm")))
sketch9.addConstraint(Sketcher.Constraint("DistanceX", 14, 2, 21, 2, Q("1 mm")))
sketch9.addConstraint(Sketcher.Constraint("DistanceY", 27, 2, 18, 2, Q("1 mm")))
sketch9.addConstraint(Sketcher.Constraint("DistanceX", 29, 2, 35, 2, Q("1 mm")))
sketch9.addConstraint(Sketcher.Constraint("DistanceX", 33, 2, 41, 2, Q("1 mm")))
sketch9.addConstraint(Sketcher.Constraint("DistanceY", -1, 1, 9, 2, Q("5.5 mm")))
sketch9.addConstraint(Sketcher.Constraint("DistanceY", 1, 2, 10, 2, Q("0.5 mm")))
sketch9.addConstraint(Sketcher.Constraint("DistanceX", 30, 2, 30, 1, Q("1.053409 mm")))
sketch9.addConstraint(Sketcher.Constraint("DistanceY", 13, 2, 13, 1, Q("2.136251 mm")))
sketch9.addConstraint(Sketcher.Constraint("DistanceX", 33, 1, 33, 2, Q("3.858734 mm")))
sketch9.addConstraint(Sketcher.Constraint("DistanceY", 17, 2, 17, 1, Q("1.432478 mm")))
pad6 = body.newObject("PartDesign::Pad", "Pad005")
pad6.Profile = sketch9
pad6.Length = 1.5
pad6.Reversed = True

sketch10 = body.newObject("Sketcher::SketchObject", "Sketch009")
sketch10.AttachmentSupport = (doc.getObject("XZ_Plane"), [""])
sketch10.MapMode = "FlatFace"
sketch10.AttachmentOffset = App.Placement(V(0, 0, -2), App.Rotation())
add_polygon(sketch10, [(-3, 2), (-3, 7), (3, 7), (3, 2)])
sketch10.addConstraint(Sketcher.Constraint("Vertical", 0))
sketch10.addConstraint(Sketcher.Constraint("Horizontal", 1))
sketch10.addConstraint(Sketcher.Constraint("Vertical", 2))
sketch10.addConstraint(Sketcher.Constraint("Horizontal", 3))
sketch10.addConstraint(Sketcher.Constraint("DistanceX", 1, 1, 1, 2, Q("6 mm")))
sketch10.addConstraint(Sketcher.Constraint("DistanceX", 0, 2, -1, 1, Q("3 mm")))
sketch10.addConstraint(Sketcher.Constraint("DistanceY", -1, 1, 0, 2, Q("7 mm")))
sketch10.addConstraint(Sketcher.Constraint("DistanceY", 0, 1, 0, 2, Q("5.431874 mm")))
pad7 = body.newObject("PartDesign::Pad", "Pad006")
pad7.Profile = sketch10
pad7.Length = 1.5
pad7.Reversed = True

sketch11 = body.newObject("Sketcher::SketchObject", "Sketch010")
sketch11.AttachmentSupport = (doc.getObject("XZ_Plane"), [""])
sketch11.MapMode = "FlatFace"
sketch11.addGeometry(Part.Circle(V(0, 0, 0), V(0, 0, 1), 1.6), False)
sketch11.addConstraint(Sketcher.Constraint("Coincident", 0, 3, -1, 1))
sketch11.addConstraint(Sketcher.Constraint("Diameter", 0, Q("3.15 mm")))
pocket4 = body.newObject("PartDesign::Pocket", "Pocket003")
pocket4.Profile = sketch11
pocket4.Length = 2.5

doc.recompute()
